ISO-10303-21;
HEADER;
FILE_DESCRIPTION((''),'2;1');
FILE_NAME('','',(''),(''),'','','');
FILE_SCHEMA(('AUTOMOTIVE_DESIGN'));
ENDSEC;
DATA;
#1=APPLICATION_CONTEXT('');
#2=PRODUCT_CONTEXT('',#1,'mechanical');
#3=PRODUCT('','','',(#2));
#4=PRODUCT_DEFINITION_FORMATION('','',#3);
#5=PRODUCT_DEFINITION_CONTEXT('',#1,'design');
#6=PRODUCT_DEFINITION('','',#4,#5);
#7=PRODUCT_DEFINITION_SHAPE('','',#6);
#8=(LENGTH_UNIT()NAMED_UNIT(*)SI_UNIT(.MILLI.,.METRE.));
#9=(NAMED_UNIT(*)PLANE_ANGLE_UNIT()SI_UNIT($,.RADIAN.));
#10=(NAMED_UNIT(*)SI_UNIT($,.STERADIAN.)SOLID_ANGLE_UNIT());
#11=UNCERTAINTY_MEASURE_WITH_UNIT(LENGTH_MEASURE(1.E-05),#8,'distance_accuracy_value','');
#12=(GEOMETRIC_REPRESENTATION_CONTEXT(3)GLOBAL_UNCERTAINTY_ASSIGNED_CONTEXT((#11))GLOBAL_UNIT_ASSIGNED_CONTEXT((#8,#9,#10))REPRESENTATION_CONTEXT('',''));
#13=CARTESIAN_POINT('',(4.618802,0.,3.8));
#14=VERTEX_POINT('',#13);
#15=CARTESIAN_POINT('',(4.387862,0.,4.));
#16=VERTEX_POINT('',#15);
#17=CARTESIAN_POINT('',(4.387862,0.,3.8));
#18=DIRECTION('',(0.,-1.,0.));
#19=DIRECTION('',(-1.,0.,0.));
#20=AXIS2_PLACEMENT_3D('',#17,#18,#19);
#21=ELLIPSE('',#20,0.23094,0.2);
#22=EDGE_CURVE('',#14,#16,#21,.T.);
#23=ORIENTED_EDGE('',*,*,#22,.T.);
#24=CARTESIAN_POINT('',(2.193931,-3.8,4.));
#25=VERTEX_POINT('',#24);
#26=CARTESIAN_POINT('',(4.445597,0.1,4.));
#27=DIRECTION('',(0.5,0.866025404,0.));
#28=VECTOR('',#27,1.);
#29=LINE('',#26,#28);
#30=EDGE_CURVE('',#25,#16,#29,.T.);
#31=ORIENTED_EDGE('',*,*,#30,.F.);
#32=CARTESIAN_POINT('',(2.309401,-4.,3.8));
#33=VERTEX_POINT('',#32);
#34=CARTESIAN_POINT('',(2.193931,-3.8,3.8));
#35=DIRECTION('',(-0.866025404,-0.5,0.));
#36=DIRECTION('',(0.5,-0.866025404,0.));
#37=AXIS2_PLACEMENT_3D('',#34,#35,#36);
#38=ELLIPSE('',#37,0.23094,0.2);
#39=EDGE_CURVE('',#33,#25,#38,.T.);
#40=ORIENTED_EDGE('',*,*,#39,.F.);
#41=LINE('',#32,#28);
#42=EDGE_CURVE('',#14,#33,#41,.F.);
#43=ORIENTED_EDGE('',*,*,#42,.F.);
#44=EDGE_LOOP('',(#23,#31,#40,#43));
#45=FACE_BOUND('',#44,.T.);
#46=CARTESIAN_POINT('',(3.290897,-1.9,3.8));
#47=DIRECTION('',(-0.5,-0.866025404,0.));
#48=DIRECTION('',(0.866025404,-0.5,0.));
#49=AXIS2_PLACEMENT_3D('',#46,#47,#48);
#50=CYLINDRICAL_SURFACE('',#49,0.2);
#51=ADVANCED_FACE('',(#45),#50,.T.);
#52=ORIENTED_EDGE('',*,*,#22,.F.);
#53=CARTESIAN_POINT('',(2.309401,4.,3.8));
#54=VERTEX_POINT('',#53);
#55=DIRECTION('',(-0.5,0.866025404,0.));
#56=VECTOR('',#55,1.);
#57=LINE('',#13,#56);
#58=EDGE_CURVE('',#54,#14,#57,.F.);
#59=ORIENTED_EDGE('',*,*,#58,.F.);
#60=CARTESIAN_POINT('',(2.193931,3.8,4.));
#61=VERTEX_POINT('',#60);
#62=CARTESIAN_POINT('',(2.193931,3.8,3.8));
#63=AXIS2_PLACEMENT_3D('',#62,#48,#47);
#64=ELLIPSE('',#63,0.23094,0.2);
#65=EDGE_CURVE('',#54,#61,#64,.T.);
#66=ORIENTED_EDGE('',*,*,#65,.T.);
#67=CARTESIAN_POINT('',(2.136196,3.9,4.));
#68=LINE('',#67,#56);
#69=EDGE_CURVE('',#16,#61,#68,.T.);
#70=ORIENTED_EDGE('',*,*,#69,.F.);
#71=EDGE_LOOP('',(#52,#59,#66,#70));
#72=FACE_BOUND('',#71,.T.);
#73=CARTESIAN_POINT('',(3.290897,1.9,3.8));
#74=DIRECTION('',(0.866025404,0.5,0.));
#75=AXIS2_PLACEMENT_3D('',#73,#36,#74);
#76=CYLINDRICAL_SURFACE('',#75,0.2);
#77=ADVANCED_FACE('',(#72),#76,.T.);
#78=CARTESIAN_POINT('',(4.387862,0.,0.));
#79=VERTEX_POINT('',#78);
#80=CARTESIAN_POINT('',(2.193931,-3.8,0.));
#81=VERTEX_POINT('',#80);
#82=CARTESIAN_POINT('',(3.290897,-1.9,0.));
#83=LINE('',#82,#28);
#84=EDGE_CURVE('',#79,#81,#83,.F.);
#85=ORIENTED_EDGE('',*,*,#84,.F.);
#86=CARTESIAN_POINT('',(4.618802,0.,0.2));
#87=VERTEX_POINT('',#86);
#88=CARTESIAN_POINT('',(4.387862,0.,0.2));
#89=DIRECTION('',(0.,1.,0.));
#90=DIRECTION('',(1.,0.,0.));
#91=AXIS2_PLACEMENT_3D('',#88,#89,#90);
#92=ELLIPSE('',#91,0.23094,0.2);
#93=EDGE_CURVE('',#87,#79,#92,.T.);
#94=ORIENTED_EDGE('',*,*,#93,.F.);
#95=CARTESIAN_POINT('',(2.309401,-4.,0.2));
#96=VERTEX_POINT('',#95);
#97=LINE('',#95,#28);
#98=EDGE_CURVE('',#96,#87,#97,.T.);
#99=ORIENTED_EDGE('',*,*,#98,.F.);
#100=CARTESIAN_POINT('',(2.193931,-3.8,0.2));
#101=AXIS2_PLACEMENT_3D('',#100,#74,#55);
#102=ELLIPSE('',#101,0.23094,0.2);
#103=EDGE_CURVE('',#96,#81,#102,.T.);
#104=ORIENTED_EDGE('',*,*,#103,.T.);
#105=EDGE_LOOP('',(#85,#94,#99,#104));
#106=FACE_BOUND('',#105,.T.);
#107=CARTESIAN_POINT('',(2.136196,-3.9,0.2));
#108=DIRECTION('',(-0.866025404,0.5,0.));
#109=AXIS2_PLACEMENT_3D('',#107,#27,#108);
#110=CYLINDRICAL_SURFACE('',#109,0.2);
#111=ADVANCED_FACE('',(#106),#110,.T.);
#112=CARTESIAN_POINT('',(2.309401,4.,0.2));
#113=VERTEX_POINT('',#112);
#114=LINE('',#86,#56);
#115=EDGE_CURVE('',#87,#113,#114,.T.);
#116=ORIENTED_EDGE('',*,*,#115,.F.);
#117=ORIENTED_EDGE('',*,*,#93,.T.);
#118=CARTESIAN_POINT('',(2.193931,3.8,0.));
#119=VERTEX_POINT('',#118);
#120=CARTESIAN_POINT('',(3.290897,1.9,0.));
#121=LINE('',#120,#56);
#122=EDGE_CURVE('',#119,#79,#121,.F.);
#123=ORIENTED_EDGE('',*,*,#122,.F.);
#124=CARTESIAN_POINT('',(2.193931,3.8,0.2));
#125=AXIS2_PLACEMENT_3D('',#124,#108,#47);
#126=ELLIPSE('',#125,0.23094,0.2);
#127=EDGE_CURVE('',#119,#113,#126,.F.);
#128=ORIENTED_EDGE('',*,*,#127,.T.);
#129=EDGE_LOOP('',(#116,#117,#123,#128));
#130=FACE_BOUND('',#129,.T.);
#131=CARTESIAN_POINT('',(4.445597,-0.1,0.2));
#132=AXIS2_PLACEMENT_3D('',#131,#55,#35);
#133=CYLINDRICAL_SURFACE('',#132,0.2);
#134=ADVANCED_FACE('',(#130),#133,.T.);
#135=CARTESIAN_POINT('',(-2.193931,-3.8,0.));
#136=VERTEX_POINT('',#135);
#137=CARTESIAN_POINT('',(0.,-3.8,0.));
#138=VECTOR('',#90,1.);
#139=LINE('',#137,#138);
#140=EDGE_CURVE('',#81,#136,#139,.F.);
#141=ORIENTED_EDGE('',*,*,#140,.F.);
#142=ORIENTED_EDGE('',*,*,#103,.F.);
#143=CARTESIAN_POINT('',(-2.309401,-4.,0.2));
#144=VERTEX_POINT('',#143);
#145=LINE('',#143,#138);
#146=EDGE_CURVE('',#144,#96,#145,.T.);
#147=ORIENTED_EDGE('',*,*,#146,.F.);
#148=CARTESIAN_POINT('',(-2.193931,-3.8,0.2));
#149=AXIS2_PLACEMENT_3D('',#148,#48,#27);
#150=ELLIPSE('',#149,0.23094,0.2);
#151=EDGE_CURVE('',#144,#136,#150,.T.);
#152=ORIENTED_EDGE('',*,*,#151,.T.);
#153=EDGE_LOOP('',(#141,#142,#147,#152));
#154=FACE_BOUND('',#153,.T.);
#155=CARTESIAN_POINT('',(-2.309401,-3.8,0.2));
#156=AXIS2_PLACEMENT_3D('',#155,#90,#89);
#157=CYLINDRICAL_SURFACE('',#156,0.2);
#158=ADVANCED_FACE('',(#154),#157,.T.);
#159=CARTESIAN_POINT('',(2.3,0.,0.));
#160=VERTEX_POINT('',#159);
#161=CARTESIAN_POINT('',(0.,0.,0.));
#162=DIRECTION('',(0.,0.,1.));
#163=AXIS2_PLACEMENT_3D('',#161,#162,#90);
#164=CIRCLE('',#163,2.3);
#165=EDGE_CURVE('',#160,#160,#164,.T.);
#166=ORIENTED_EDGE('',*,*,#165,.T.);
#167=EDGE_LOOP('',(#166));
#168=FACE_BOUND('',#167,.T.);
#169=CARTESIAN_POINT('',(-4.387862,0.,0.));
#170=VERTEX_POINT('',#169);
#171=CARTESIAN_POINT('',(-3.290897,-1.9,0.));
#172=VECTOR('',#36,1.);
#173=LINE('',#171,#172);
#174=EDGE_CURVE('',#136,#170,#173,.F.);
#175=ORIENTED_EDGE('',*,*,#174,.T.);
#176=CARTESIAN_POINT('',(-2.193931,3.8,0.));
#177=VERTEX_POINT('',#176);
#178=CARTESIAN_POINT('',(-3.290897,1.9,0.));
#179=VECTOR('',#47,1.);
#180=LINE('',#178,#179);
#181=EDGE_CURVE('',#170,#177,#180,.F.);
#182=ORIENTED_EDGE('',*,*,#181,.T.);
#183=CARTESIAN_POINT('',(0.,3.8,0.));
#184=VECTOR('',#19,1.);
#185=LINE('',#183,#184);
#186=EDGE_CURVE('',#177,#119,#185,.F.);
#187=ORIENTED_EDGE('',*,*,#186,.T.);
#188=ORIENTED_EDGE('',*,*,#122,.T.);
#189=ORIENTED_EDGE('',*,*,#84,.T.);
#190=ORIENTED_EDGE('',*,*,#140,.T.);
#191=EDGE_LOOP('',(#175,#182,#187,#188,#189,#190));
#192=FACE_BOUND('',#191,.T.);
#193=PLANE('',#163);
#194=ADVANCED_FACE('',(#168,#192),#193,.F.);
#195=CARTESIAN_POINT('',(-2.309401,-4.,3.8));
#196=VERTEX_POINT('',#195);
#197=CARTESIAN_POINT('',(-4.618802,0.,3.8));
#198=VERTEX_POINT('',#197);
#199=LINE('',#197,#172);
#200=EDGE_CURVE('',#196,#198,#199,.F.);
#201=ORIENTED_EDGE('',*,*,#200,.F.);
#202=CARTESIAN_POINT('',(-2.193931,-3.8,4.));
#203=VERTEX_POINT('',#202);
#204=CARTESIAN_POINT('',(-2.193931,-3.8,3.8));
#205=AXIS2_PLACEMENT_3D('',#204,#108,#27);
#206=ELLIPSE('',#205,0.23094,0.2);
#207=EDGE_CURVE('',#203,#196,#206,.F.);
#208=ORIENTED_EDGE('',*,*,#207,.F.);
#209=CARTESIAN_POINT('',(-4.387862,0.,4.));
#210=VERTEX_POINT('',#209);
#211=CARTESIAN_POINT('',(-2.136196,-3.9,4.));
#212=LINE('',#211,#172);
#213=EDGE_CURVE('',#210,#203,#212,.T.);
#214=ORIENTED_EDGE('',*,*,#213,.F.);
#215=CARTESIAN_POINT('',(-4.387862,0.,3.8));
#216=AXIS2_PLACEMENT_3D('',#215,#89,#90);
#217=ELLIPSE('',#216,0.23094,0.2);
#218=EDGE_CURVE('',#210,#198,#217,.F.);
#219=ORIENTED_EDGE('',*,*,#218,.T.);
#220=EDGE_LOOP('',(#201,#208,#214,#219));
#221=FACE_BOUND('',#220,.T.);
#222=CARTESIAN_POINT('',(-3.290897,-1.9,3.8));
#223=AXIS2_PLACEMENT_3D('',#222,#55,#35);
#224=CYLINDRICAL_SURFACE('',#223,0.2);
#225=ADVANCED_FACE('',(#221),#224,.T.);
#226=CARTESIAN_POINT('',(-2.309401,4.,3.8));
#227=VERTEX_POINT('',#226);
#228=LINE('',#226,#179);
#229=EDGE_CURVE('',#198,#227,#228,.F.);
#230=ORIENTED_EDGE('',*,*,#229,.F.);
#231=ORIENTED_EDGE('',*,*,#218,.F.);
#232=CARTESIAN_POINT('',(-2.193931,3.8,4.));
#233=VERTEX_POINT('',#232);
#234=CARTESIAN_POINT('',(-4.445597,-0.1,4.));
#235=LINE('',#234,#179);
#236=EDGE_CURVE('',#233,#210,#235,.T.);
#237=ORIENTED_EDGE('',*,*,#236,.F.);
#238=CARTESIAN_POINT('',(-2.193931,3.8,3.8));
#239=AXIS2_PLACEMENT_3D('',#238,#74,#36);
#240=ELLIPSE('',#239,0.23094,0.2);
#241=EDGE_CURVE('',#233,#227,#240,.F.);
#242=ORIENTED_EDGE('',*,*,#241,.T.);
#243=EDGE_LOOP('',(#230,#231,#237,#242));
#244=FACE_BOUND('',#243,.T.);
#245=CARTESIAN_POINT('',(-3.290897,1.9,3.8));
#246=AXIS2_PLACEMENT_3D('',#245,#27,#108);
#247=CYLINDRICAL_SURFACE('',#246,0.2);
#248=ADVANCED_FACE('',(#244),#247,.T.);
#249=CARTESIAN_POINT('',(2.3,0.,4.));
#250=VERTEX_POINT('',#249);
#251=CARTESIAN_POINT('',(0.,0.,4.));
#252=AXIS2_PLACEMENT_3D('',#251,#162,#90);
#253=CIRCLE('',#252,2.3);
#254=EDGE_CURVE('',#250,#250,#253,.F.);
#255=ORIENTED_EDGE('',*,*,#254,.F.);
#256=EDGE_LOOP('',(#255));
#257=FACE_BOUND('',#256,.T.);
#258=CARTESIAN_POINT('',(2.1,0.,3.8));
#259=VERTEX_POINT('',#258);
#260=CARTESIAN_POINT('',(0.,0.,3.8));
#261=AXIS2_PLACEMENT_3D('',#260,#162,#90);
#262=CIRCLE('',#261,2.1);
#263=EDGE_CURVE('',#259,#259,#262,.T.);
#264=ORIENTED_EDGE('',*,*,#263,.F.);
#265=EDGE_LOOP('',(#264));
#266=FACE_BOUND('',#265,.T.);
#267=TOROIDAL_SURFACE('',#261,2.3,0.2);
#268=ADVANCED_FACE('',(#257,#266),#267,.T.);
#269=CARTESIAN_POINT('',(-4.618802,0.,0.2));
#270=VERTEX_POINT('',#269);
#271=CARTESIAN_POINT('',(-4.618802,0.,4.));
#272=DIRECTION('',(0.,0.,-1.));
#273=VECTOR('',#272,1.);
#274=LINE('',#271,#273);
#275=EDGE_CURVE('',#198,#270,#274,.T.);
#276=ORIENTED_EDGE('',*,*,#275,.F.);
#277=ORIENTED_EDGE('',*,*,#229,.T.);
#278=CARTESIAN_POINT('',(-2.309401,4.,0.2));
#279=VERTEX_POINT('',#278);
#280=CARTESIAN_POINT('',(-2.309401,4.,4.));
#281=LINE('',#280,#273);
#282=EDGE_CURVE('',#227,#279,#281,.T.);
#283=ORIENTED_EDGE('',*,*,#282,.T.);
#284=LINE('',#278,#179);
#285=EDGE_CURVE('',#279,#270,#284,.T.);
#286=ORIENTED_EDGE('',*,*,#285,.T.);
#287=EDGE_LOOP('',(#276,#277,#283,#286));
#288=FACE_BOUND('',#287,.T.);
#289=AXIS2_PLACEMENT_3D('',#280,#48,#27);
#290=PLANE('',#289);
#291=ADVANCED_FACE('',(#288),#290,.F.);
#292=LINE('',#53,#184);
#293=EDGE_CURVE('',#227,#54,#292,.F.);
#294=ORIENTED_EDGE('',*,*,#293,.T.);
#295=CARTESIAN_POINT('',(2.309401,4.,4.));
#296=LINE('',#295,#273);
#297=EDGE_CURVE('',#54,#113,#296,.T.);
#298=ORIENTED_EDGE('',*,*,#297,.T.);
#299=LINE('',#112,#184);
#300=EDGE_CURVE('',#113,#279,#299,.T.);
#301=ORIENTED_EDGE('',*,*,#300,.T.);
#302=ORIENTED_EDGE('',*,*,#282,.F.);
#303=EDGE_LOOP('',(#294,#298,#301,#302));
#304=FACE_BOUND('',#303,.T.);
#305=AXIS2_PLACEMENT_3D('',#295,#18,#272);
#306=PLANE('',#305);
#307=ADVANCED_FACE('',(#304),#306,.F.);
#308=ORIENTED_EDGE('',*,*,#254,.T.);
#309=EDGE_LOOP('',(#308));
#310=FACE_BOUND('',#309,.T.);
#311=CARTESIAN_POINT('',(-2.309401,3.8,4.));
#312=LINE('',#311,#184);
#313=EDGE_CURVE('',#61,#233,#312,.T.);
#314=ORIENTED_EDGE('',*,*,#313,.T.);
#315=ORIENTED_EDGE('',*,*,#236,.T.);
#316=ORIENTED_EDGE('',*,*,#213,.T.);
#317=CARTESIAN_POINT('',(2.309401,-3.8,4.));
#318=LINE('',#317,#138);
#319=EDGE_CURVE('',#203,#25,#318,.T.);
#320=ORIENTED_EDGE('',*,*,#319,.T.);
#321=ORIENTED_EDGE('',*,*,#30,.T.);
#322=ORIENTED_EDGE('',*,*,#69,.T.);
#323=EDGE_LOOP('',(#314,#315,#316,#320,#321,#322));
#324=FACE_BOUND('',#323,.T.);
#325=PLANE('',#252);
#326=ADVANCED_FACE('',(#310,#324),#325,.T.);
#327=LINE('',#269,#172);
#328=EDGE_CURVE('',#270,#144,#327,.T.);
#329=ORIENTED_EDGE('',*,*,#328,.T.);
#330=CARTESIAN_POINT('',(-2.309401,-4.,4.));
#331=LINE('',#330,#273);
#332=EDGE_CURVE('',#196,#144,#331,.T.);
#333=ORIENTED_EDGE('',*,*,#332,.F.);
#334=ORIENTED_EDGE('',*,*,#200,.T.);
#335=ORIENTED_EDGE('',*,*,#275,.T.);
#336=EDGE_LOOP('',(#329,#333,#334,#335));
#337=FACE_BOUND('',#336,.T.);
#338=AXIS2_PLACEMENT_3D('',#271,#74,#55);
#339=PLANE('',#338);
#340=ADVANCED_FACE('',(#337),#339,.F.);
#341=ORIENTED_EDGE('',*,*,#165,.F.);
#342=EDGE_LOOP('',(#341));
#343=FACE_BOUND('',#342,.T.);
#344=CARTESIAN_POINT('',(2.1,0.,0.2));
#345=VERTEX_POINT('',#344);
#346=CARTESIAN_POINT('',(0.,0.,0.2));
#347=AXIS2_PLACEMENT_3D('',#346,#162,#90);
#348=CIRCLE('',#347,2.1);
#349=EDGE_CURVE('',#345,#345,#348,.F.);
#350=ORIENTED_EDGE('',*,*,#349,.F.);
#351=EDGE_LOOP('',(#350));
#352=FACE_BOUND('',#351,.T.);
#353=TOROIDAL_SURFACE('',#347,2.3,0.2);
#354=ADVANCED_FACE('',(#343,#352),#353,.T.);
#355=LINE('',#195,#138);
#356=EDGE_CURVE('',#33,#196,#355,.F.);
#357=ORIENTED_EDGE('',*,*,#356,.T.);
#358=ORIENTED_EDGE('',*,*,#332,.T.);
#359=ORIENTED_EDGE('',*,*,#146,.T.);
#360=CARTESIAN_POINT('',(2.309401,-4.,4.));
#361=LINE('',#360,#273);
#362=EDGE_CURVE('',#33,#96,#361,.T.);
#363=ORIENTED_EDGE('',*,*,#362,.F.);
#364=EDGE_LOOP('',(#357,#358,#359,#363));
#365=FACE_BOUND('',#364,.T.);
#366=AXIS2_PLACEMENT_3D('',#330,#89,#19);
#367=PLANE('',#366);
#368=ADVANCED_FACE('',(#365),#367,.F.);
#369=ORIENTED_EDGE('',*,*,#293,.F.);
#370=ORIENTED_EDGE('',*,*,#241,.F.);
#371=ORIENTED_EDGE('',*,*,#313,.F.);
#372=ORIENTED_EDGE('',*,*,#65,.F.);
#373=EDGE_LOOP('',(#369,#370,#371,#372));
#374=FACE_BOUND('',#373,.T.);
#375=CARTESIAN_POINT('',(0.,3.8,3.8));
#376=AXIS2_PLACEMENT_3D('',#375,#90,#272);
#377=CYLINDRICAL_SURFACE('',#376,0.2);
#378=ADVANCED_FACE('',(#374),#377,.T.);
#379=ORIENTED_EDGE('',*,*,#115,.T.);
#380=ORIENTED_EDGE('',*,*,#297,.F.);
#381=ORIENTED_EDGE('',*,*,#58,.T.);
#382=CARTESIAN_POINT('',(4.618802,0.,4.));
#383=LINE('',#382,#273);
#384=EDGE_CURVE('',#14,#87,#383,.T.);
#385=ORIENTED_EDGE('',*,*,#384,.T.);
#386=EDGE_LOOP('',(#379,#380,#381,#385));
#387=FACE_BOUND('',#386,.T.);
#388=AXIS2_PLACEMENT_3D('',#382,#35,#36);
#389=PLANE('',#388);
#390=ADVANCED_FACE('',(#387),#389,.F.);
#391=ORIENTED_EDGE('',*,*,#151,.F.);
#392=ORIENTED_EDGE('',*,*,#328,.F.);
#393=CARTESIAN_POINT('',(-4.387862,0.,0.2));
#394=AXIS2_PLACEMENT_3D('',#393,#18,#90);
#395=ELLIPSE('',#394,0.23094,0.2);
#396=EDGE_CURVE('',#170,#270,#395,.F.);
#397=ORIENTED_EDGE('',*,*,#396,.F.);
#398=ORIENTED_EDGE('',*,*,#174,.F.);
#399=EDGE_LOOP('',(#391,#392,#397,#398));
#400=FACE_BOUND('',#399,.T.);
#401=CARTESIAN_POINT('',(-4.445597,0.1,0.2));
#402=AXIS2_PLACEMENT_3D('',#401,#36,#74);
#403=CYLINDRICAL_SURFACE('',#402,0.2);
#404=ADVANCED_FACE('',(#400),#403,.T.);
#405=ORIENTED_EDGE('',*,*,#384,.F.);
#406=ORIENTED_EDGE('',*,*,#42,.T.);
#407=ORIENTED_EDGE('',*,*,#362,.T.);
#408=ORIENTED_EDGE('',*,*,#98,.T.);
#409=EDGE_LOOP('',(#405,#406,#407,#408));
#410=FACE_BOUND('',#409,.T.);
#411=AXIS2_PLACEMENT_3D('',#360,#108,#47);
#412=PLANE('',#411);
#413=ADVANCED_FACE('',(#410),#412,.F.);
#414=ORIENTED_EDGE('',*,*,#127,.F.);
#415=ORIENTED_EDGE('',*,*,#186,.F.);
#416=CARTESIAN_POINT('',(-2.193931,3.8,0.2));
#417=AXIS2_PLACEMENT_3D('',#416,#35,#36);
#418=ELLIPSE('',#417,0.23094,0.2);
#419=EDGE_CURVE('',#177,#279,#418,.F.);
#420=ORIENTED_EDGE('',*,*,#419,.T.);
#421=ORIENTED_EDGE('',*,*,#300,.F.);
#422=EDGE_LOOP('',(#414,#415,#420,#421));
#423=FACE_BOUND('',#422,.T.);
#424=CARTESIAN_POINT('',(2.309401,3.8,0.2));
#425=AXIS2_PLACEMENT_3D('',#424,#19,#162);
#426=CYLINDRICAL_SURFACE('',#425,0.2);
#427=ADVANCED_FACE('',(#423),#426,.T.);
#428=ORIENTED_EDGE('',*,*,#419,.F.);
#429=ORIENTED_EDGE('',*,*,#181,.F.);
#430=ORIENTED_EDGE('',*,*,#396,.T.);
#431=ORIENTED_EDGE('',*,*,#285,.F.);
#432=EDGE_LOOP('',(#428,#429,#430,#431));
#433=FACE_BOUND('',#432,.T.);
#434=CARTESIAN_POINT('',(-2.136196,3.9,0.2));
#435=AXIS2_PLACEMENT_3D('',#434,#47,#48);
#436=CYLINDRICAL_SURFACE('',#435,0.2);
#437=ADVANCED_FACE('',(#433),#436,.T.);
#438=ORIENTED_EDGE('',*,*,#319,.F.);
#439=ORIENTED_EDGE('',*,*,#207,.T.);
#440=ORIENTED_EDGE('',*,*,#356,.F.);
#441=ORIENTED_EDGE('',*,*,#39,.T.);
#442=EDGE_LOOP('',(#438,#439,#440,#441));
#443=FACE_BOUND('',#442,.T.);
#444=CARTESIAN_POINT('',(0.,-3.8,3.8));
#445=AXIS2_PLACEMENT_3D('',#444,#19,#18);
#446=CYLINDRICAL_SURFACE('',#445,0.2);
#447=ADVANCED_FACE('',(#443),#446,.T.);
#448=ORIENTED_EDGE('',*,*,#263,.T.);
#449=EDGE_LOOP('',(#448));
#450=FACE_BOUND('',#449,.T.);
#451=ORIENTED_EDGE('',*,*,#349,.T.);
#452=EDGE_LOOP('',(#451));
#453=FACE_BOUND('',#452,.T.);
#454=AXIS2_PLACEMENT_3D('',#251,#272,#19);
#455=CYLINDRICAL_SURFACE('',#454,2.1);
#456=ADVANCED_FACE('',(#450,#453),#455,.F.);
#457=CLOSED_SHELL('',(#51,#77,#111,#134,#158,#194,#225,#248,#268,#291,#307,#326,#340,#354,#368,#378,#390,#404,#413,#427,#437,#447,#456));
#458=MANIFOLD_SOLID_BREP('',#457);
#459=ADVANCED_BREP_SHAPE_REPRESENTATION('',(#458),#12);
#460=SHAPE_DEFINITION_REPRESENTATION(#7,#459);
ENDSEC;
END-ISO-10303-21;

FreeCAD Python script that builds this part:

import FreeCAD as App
import Part
import Sketcher

V = App.Vector
Q = App.Units.Quantity


def edges_at(feature, points):
    """Names of the edges that pass closest to the given points."""
    edges = feature.Shape.Edges
    near = lambda p: min(range(len(edges)), key=lambda i: edges[i].distToShape(Part.Vertex(*p))[0])
    return sorted({f"Edge{near(p) + 1}" for p in points})


def add_polygon(sketch, points):
    """Adds a closed chain of lines whose ends are joined by coincident constraints."""
    first, n = sketch.GeometryCount, len(points)
    for a, b in zip(points, points[1:] + points[:1]):
        sketch.addGeometry(Part.LineSegment(App.Vector(*a, 0), App.Vector(*b, 0)), False)
    for i in range(n):
        sketch.addConstraint(Sketcher.Constraint("Coincident", first + i, 2, first + (i + 1) % n, 1))

doc = App.newDocument("Part")
body = doc.addObject("PartDesign::Body", "Body")

sketch1 = doc.addObject("Sketcher::SketchObject", "Sketch")
body.addObject(sketch1)
sketch1.AttachmentSupport = (doc.XY_Plane, [""])
sketch1.MapMode = "FlatFace"
add_polygon(sketch1, [(4.618802, 0), (2.309401, 4), (-2.309401, 4), (-4.618802, 0), (-2.309401, -4), (2.309401, -4)])
sketch1.addGeometry(Part.Circle(V(0, 0, 0), V(0, 0, 1), 2.1), False)
sketch1.addConstraint(Sketcher.Constraint("Horizontal", 1))
sketch1.addConstraint(Sketcher.Constraint("Horizontal", 4))
sketch1.addConstraint(Sketcher.Constraint("Coincident", 6, 3, -1, 1))
sketch1.addConstraint(Sketcher.Constraint("Symmetric", 0, 2, 3, 2, -1, 1))
sketch1.addConstraint(Sketcher.Constraint("Symmetric", 2, 2, 5, 2, -1, 1))
sketch1.addConstraint(Sketcher.Constraint("PointOnObject", 2, 2, -1))
sketch1.addConstraint(Sketcher.Constraint("Parallel", 2, 5))
sketch1.addConstraint(Sketcher.Constraint("Vertical", 1, 2, 3, 2))
sketch1.addConstraint(Sketcher.Constraint("Diameter", 6, Q("4.2 mm")))
sketch1.addConstraint(Sketcher.Constraint("Angle", 0, Q("120 deg")))
sketch1.addConstraint(Sketcher.Constraint("DistanceY", -1, 1, 0, 2, Q("4 mm")))
sketch1.addConstraint(Sketcher.Constraint("DistanceX", -1, 1, 0, 2, Q("2.309401 mm")))
pad1 = doc.addObject("PartDesign::Pad", "Pad")
body.addObject(pad1)
pad1.Profile = sketch1
pad1.Length = 4
doc.recompute()

fillet = doc.addObject("PartDesign::Fillet", "Fillet")
body.addObject(fillet)
fillet.Base = (pad1, edges_at(pad1, [
    (0, 4, 4),
    (-3.464, 2, 4),
    (-3.464, -2, 4),
    (-2.1, 0, 0),
    (-2.1, 0, 4),
    (0, -4, 4),
    (3.464, -2, 4),
    (0, -4, 0),
    (-3.464, -2, 0),
    (-3.464, 2, 0),
    (3.464, 2, 4),
    (0, 4, 0),
    (3.464, 2, 0),
    (3.464, -2, 0),
]))
fillet.Radius = 0.2

doc.recompute()
